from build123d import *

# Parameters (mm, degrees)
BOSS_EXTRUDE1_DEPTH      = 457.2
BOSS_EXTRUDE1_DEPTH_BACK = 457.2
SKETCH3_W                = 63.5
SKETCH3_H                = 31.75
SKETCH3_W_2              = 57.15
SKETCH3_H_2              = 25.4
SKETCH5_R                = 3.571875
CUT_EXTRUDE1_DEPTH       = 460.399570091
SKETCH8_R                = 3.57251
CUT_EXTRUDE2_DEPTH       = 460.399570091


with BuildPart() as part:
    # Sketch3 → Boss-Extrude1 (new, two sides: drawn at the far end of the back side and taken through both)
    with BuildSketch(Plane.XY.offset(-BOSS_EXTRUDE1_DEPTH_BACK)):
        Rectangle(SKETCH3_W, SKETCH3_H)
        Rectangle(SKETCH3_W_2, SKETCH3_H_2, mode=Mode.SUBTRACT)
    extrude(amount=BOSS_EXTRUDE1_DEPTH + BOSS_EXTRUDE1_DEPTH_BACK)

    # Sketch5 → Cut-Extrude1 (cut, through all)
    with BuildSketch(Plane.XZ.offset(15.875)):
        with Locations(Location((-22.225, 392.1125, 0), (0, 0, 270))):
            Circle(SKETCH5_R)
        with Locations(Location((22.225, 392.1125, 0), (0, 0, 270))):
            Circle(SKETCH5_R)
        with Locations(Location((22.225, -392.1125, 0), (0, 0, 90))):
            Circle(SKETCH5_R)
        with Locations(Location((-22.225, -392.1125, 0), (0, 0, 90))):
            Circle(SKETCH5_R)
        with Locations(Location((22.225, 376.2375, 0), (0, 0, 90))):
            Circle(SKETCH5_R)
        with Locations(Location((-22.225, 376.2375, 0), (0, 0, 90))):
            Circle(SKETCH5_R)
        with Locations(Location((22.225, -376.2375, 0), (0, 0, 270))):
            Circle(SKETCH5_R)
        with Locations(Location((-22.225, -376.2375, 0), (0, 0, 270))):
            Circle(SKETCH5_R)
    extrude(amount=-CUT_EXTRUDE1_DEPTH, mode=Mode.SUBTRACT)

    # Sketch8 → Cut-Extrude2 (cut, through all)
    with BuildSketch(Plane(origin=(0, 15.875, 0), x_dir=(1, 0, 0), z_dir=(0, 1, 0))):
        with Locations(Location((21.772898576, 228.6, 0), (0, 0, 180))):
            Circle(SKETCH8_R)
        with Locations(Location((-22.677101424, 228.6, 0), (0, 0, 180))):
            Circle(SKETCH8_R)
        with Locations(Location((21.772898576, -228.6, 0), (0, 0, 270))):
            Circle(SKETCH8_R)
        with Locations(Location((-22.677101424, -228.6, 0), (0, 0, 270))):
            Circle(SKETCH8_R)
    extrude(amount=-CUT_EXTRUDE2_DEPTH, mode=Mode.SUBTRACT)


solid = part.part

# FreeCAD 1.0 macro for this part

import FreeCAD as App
import Part
import Sketcher

V = App.Vector
Q = App.Units.Quantity


def add_polygon(sketch, points):
    """Adds a closed chain of lines whose ends are joined by coincident constraints."""
    first, n = sketch.GeometryCount, len(points)
    for a, b in zip(points, points[1:] + points[:1]):
        sketch.addGeometry(Part.LineSegment(App.Vector(*a, 0), App.Vector(*b, 0)), False)
    for i in range(n):
        sketch.addConstraint(Sketcher.Constraint("Coincident", first + i, 2, first + (i + 1) % n, 1))

doc = App.newDocument("Part")
params = doc.addObject("Spreadsheet::Sheet", "Params")
for row, (alias, value) in enumerate([
    ("sketch1_height", "1 in"),
    ("sketch1_width", "2.5 in"),
    ("sketch1_width2", "2.25 in"),
    ("sketch1_height2", "1.25 in"),
    ("pad1_length", "18 in"),
    ("pad1_length2", "18 in"),
    ("sketch2_diameter", "0.28125 in"),
], start=1):
    params.set(f"A{row}", alias)
    params.set(f"B{row}", "=" + value)
    params.setAlias(f"B{row}", alias)

body = doc.addObject("PartDesign::Body", "Body")

sketch1 = body.newObject("Sketcher::SketchObject", "Sketch")
sketch1.AttachmentSupport = (doc.getObject("XY_Plane"), [""])
sketch1.MapMode = "FlatFace"
add_polygon(sketch1, [(-32, 16), (-32, -16), (32, -16), (32, 16)])
add_polygon(sketch1, [(29, -13), (-29, -13), (-29, 13), (29, 13)])
sketch1.addConstraint([
    Sketcher.Constraint("Vertical", 0),
    Sketcher.Constraint("Horizontal", 1),
    Sketcher.Constraint("Vertical", 2),
    Sketcher.Constraint("Horizontal", 3),
    Sketcher.Constraint("Horizontal", 4),
    Sketcher.Constraint("Vertical", 5),
    Sketcher.Constraint("Horizontal", 6),
    Sketcher.Constraint("Vertical", 7),
    Sketcher.Constraint("Symmetric", 0, 2, 2, 2, -1, 1),
    Sketcher.Constraint("Symmetric", 4, 2, 6, 2, -1, 1),
    Sketcher.Constraint("DistanceY", 5, 1, 5, 2, Q("1 in")),
    Sketcher.Constraint("DistanceX", 1, 1, 1, 2, Q("2.5 in")),
    Sketcher.Constraint("DistanceX", 4, 2, 4, 1, Q("2.25 in")),
    Sketcher.Constraint("DistanceY", 0, 2, 0, 1, Q("1.25 in")),
])
sketch1.setExpression("Constraints[18]", "Params.sketch1_height")
sketch1.setExpression("Constraints[19]", "Params.sketch1_width")
sketch1.setExpression("Constraints[20]", "Params.sketch1_width2")
sketch1.setExpression("Constraints[21]", "Params.sketch1_height2")
pad1 = body.newObject("PartDesign::Pad", "Pad")
pad1.Profile = sketch1
pad1.Type = "TwoLengths"
pad1.setExpression("Length", "Params.pad1_length")
pad1.setExpression("Length2", "Params.pad1_length2")

sketch2 = body.newObject("Sketcher::SketchObject", "Sketch001")
sketch2.AttachmentSupport = (doc.getObject("XZ_Plane"), [""])
sketch2.MapMode = "FlatFace"
sketch2.AttachmentOffset = App.Placement(V(0, 0, 0.625 * 25.4), App.Rotation())
sketch2.addGeometry([
    Part.Circle(V(-22.2, 392.1, 0), V(0, 0, 1), 3.6),
    Part.Circle(V(22.2, 392.1, 0), V(0, 0, 1), 3.6),
    Part.Circle(V(22.2, -392.1, 0), V(0, 0, 1), 3.6),
    Part.Circle(V(-22.2, -392.1, 0), V(0, 0, 1), 3.6),
    Part.Circle(V(22.2, 376.2, 0), V(0, 0, 1), 3.6),
    Part.Circle(V(-22.2, 376.2, 0), V(0, 0, 1), 3.6),
    Part.Circle(V(22.2, -376.2, 0), V(0, 0, 1), 3.6),
    Part.Circle(V(-22.2, -376.2, 0), V(0, 0, 1), 3.6),
], False)
sketch2.addConstraint([
    Sketcher.Constraint("Equal", 0, 1),
    Sketcher.Constraint("Equal", 1, 2),
    Sketcher.Constraint("Equal", 2, 3),
    Sketcher.Constraint("Equal", 3, 4),
    Sketcher.Constraint("Equal", 4, 5),
    Sketcher.Constraint("Equal", 5, 6),
    Sketcher.Constraint("Equal", 6, 7),
    Sketcher.Constraint("Symmetric", 0, 3, 2, 3, -1, 1),
    Sketcher.Constraint("Symmetric", 1, 3, 3, 3, -1, 1),
    Sketcher.Constraint("Symmetric", 5, 3, 6, 3, -1, 1),
    Sketcher.Constraint("Symmetric", 4, 3, 7, 3, -1, 1),
    Sketcher.Constraint("Symmetric", 0, 3, 1, 3, -2),
    Sketcher.Constraint("Symmetric", 4, 3, 5, 3, -2),
    Sketcher.Constraint("Vertical", 2, 3, 4, 3),
    Sketcher.Constraint("Diameter", 0, Q("0.28125 in")),
    Sketcher.Constraint("DistanceX", 0, 3, 1, 3, Q("1.75 in")),
    Sketcher.Constraint("DistanceY", 2, 3, 4, 3, Q("30.25 in")),
    Sketcher.Constraint("DistanceY", -1, 1, 0, 3, Q("15.4375 in")),
])
sketch2.setExpression("Constraints[14]", "Params.sketch2_diameter")
pocket1 = body.newObject("PartDesign::Pocket", "Pocket")
pocket1.Profile = sketch2
pocket1.Type = "ThroughAll"

sketch3 = body.newObject("Sketcher::SketchObject", "Sketch002")
sketch3.AttachmentSupport = (doc.getObject("XZ_Plane"), [""])
sketch3.MapMode = "FlatFace"
sketch3.AttachmentOffset = App.Placement(V(0, 0, -0.625 * 25.4), App.Rotation())
sketch3.addGeometry([
    Part.Circle(V(21.8, -228.6, 0), V(0, 0, 1), 3.6),
    Part.Circle(V(-22.7, -228.6, 0), V(0, 0, 1), 3.6),
    Part.Circle(V(21.8, 228.6, 0), V(0, 0, 1), 3.6),
    Part.Circle(V(-22.7, 228.6, 0), V(0, 0, 1), 3.6),
], False)
sketch3.addConstraint([
    Sketcher.Constraint("Equal", 0, 1),
    Sketcher.Constraint("Equal", 1, 2),
    Sketcher.Constraint("Equal", 2, 3),
    Sketcher.Constraint("Symmetric", 0, 3, 2, 3, -1),
    Sketcher.Constraint("Symmetric", 1, 3, 3, 3, -1),
    Sketcher.Constraint("Horizontal", 0, 3, 1, 3),
    Sketcher.Constraint("DistanceY", 0, 3, -1, 1, Q("9 in")),
    Sketcher.Constraint("Diameter", 0, Q("0.2813 in")),
    Sketcher.Constraint("DistanceX", 1, 3, 0, 3, Q("1.75 in")),
    Sketcher.Constraint("DistanceX", -1, 1, 0, 3, Q("21.772899 mm")),
])
pocket2 = body.newObject("PartDesign::Pocket", "Pocket001")
pocket2.Profile = sketch3
pocket2.Type = "ThroughAll"
pocket2.Reversed = True

doc.recompute()
